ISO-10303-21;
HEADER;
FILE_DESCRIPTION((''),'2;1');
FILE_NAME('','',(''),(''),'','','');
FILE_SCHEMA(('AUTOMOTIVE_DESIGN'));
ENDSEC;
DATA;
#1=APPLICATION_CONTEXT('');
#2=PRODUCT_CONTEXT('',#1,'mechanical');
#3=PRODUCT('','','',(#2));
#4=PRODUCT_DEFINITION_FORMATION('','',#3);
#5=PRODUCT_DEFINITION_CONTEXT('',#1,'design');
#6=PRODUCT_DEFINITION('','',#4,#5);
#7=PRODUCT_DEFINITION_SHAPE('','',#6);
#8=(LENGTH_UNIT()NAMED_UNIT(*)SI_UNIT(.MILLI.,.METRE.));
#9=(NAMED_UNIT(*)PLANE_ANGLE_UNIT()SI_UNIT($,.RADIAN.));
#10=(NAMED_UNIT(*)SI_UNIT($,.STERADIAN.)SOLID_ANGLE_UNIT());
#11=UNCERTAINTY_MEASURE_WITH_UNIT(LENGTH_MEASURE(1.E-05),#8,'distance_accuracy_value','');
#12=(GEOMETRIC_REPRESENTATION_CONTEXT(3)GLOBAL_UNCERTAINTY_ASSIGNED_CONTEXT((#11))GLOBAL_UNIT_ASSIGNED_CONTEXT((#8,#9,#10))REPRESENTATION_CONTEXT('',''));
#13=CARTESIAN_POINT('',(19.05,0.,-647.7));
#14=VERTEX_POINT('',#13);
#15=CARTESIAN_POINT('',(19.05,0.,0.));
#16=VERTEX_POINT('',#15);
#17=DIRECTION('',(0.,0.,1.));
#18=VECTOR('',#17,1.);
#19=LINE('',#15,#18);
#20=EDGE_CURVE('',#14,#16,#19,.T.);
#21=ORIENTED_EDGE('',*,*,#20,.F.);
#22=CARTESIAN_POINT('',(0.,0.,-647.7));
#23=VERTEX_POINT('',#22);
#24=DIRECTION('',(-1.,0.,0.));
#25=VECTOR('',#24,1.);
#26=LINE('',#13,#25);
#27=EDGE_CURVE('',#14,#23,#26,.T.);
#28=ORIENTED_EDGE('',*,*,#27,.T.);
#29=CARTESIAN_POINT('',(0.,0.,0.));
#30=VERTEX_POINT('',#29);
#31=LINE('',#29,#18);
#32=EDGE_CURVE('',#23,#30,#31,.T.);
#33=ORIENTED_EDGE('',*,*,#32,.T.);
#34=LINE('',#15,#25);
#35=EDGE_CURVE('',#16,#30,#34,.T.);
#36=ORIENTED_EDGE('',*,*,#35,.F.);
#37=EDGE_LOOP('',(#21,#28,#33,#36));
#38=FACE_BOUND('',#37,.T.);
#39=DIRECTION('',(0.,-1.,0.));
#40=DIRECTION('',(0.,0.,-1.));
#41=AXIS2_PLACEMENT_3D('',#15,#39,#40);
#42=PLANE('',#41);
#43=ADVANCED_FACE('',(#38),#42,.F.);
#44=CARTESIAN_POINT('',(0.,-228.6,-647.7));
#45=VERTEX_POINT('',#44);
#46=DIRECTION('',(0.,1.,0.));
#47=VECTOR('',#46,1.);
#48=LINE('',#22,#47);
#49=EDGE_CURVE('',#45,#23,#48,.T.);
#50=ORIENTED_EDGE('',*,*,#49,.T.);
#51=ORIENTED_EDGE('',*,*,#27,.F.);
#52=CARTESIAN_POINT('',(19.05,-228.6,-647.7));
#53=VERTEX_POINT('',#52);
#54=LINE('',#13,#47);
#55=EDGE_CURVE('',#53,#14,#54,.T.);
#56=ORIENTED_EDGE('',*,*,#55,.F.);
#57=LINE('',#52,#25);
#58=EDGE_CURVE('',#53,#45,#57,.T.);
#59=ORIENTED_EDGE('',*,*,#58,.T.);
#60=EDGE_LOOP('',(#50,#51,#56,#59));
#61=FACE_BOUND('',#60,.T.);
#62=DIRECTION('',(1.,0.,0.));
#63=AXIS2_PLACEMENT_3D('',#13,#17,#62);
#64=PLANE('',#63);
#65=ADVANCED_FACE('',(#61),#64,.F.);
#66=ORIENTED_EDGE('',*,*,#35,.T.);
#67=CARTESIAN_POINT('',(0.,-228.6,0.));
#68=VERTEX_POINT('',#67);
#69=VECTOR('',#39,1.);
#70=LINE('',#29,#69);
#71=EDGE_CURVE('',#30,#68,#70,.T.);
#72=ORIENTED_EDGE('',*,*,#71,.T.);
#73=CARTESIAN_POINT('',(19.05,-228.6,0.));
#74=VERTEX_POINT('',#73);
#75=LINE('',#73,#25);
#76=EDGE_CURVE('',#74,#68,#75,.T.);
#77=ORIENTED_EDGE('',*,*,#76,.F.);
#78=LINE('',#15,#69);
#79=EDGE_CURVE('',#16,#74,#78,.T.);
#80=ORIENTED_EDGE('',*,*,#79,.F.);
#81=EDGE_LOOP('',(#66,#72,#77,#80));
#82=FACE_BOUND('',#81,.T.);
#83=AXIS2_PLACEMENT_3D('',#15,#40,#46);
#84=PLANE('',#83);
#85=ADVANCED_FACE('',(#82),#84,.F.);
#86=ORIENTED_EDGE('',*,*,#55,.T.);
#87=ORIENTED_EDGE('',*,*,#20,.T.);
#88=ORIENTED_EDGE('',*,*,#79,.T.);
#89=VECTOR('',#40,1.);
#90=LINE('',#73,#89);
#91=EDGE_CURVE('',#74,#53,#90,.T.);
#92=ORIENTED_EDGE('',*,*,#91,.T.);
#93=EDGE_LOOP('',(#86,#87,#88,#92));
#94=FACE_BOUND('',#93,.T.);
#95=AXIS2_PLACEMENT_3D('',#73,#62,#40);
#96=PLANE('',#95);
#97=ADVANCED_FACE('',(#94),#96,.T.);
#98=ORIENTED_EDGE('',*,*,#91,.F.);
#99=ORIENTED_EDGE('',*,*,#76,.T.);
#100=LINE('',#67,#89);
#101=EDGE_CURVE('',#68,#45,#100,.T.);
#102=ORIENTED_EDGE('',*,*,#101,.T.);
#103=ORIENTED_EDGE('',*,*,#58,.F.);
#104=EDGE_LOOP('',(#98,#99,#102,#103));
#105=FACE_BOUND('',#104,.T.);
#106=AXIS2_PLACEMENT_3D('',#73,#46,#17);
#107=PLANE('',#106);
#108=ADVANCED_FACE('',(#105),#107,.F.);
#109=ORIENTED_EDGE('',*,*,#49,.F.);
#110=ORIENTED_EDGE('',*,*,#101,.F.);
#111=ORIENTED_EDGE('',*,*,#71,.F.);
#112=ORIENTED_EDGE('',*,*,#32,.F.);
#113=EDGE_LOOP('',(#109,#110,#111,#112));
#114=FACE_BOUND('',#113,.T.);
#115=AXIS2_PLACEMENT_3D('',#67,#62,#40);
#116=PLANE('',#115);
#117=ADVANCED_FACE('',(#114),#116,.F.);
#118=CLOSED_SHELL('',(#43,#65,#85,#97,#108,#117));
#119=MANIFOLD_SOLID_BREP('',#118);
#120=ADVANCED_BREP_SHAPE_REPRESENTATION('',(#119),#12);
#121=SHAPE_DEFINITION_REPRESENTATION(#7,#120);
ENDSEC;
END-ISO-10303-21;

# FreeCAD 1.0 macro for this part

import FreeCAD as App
import Part
import Sketcher

V = App.Vector
Q = App.Units.Quantity


def add_polygon(sketch, points):
    """Adds a closed chain of lines whose ends are joined by coincident constraints."""
    first, n = sketch.GeometryCount, len(points)
    for a, b in zip(points, points[1:] + points[:1]):
        sketch.addGeometry(Part.LineSegment(App.Vector(*a, 0), App.Vector(*b, 0)), False)
    for i in range(n):
        sketch.addConstraint(Sketcher.Constraint("Coincident", first + i, 2, first + (i + 1) % n, 1))

doc = App.newDocument("Part")
body = doc.addObject("PartDesign::Body", "Body")

# Sketch on YZ plane
sketch1 = body.newObject("Sketcher::SketchObject", "Sketch")
sketch1.AttachmentSupport = (doc.getObject("YZ_Plane"), [""])
sketch1.MapMode = "FlatFace"
add_polygon(sketch1, [(0, 0), (-229, 0), (-229, -648), (0, -648)])  # lines 0-3
sketch1.addConstraint(Sketcher.Constraint("Horizontal", 0))
sketch1.addConstraint(Sketcher.Constraint("Vertical", 1))
sketch1.addConstraint(Sketcher.Constraint("Horizontal", 2))
sketch1.addConstraint(Sketcher.Constraint("Vertical", 3))
sketch1.addConstraint(Sketcher.Constraint("Coincident", 3, 2, -1, 1))
sketch1.addConstraint(Sketcher.Constraint("DistanceX", 0, 2, 0, 1, Q("9 in")))
sketch1.addConstraint(Sketcher.Constraint("DistanceY", 1, 2, 1, 1, Q("25.5 in")))
pad1 = body.newObject("PartDesign::Pad", "Pad")
pad1.Profile = sketch1
pad1.Length = Q("0.75 in")

doc.recompute()
